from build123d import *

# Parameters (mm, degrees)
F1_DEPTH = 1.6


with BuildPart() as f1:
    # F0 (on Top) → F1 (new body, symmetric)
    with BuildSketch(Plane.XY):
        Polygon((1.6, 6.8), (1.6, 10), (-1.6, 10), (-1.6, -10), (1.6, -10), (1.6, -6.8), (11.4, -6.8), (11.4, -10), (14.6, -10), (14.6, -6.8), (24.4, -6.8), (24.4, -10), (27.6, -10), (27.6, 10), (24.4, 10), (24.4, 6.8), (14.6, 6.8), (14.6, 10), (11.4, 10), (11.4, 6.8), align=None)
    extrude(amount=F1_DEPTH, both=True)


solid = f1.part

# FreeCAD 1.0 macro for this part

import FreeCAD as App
import Part
import Sketcher
from FreeCAD import Vector


def add_polygon(sketch, points):
    """Adds a closed chain of lines whose ends are joined by coincident constraints."""
    first, n = sketch.GeometryCount, len(points)
    for a, b in zip(points, points[1:] + points[:1]):
        sketch.addGeometry(Part.LineSegment(App.Vector(*a, 0), App.Vector(*b, 0)), False)
    for i in range(n):
        sketch.addConstraint(Sketcher.Constraint("Coincident", first + i, 2, first + (i + 1) % n, 1))

doc = App.newDocument("Part")
body = doc.addObject("PartDesign::Body", "Body")

sketch1 = body.newObject("Sketcher::SketchObject", "Sketch")
sketch1.AttachmentSupport = (doc.getObject("XY_Plane"), [""])
sketch1.MapMode = "FlatFace"
add_polygon(sketch1, [(1.6, 6.8), (1.6, 10), (-1.6, 10), (-1.6, -10), (1.6, -10), (1.6, -6.8), (11.4, -6.8), (11.4, -10), (14.6, -10), (14.6, -6.8), (24.4, -6.8), (24.4, -10), (27.6, -10), (27.6, 10), (24.4, 10), (24.4, 6.8), (14.6, 6.8), (14.6, 10), (11.4, 10), (11.4, 6.8)])
sketch1.addConstraint(Sketcher.Constraint("Vertical", 0))
sketch1.addConstraint(Sketcher.Constraint("Horizontal", 1))
sketch1.addConstraint(Sketcher.Constraint("Vertical", 2))
sketch1.addConstraint(Sketcher.Constraint("Horizontal", 3))
sketch1.addConstraint(Sketcher.Constraint("Vertical", 4))
sketch1.addConstraint(Sketcher.Constraint("Horizontal", 5))
sketch1.addConstraint(Sketcher.Constraint("Vertical", 6))
sketch1.addConstraint(Sketcher.Constraint("Horizontal", 7))
sketch1.addConstraint(Sketcher.Constraint("Vertical", 8))
sketch1.addConstraint(Sketcher.Constraint("Horizontal", 9))
sketch1.addConstraint(Sketcher.Constraint("Vertical", 10))
sketch1.addConstraint(Sketcher.Constraint("Horizontal", 11))
sketch1.addConstraint(Sketcher.Constraint("Vertical", 12))
sketch1.addConstraint(Sketcher.Constraint("Horizontal", 13))
sketch1.addConstraint(Sketcher.Constraint("Vertical", 14))
sketch1.addConstraint(Sketcher.Constraint("Horizontal", 15))
sketch1.addConstraint(Sketcher.Constraint("Vertical", 16))
sketch1.addConstraint(Sketcher.Constraint("Horizontal", 17))
sketch1.addConstraint(Sketcher.Constraint("Vertical", 18))
sketch1.addConstraint(Sketcher.Constraint("Horizontal", 19))
sketch1.addConstraint(Sketcher.Constraint("Symmetric", 0, 2, 2, 2, -1, 1))
sketch1.addConstraint(Sketcher.Constraint("Symmetric", 10, 2, 13, 2, -1))
sketch1.addConstraint(Sketcher.Constraint("Symmetric", 8, 2, 15, 2, -1))
sketch1.addConstraint(Sketcher.Constraint("Symmetric", 6, 2, 17, 2, -1))
sketch1.addConstraint(Sketcher.Constraint("Symmetric", 4, 2, 19, 2, -1))
sketch1.addConstraint(Sketcher.Constraint("Horizontal", 3, 2, 6, 2))
sketch1.addConstraint(Sketcher.Constraint("Horizontal", 5, 2, 8, 2))
sketch1.addConstraint(Sketcher.Constraint("Horizontal", 7, 2, 10, 2))
sketch1.addConstraint(Sketcher.Constraint("Equal", 3, 7))
sketch1.addConstraint(Sketcher.Constraint("Equal", 5, 9))
sketch1.addConstraint(Sketcher.Constraint("Equal", 7, 11))
sketch1.addConstraint(Sketcher.Constraint("Equal", 17, 0))
sketch1.addConstraint(Sketcher.Constraint("DistanceY", 2, 2, 2, 1, 20.0))
sketch1.addConstraint(Sketcher.Constraint("DistanceX", 1, 2, 1, 1, 3.2))
sketch1.addConstraint(Sketcher.Constraint("DistanceX", 5, 1, 5, 2, 9.8))
pad1 = body.newObject("PartDesign::Pad", "Pad")
pad1.Profile = sketch1
pad1.Length = 3.2
pad1.Midplane = True

doc.recompute()
